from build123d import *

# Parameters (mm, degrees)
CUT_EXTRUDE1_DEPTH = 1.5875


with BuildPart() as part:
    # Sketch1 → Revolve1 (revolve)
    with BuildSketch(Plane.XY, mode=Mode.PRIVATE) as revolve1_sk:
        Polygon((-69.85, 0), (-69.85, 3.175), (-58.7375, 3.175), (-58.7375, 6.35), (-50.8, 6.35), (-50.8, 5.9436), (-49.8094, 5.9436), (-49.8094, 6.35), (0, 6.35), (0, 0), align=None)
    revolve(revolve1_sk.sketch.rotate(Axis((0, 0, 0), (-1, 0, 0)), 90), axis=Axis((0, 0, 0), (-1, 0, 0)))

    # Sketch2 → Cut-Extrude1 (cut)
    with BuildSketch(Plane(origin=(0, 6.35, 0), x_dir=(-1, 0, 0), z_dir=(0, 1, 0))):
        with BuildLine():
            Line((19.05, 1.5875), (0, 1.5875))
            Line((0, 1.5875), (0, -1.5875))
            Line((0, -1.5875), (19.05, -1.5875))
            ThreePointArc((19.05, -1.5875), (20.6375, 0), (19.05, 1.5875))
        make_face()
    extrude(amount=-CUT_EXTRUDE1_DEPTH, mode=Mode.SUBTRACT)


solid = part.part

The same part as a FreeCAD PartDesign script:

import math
import FreeCAD as App
import Part
import Sketcher
Q = App.Units.Quantity


def add_polygon(sketch, points):
    """Adds a closed chain of lines whose ends are joined by coincident constraints."""
    first, n = sketch.GeometryCount, len(points)
    for a, b in zip(points, points[1:] + points[:1]):
        sketch.addGeometry(Part.LineSegment(App.Vector(*a, 0), App.Vector(*b, 0)), False)
    for i in range(n):
        sketch.addConstraint(Sketcher.Constraint("Coincident", first + i, 2, first + (i + 1) % n, 1))

doc = App.newDocument("Part")
body = doc.addObject("PartDesign::Body", "Body")

# Sketch on XY plane
sketch1 = body.newObject("Sketcher::SketchObject", "Sketch")
sketch1.AttachmentSupport = (doc.getObject("XY_Plane"), [""])
sketch1.MapMode = "FlatFace"
add_polygon(sketch1, [(-69.85, 3.17), (-69.85, 0), (0, 0), (0, 6.35), (-49.81, 6.35), (-49.81, 5.94), (-50.8, 5.94), (-50.8, 6.35), (-58.74, 6.35), (-58.74, 3.17)])  # lines 0-9
sketch1.addConstraint([
    Sketcher.Constraint("Vertical", 0),
    Sketcher.Constraint("Horizontal", 1),
    Sketcher.Constraint("Vertical", 2),
    Sketcher.Constraint("Horizontal", 3),
    Sketcher.Constraint("Vertical", 4),
    Sketcher.Constraint("Horizontal", 5),
    Sketcher.Constraint("Vertical", 6),
    Sketcher.Constraint("Horizontal", 7),
    Sketcher.Constraint("Vertical", 8),
    Sketcher.Constraint("Horizontal", 9),
    Sketcher.Constraint("Coincident", 1, 2, -1, 1),
    Sketcher.Constraint("Horizontal", 3, 2, 6, 2),
    Sketcher.Constraint("Equal", 0, 8),
    Sketcher.Constraint("DistanceX", 5, 2, -1, 1, Q("2 in")),
    Sketcher.Constraint("DistanceX", 1, 1, 1, 2, Q("2.75 in")),
    Sketcher.Constraint("DistanceY", 2, 1, 2, 2, Q("0.25 in")),
    Sketcher.Constraint("DistanceX", 3, 2, 3, 1, Q("1.961 in")),
    Sketcher.Constraint("DistanceX", 7, 2, 7, 1, Q("0.3125 in")),
    Sketcher.Constraint("DistanceY", 4, 2, 4, 1, Q("0.016 in")),
])
revolution = body.newObject("PartDesign::Revolution", "Revolution")
revolution.Profile = sketch1
revolution.ReferenceAxis = (sketch1, ["H_Axis"])
revolution.Angle = 360

# Sketch on XZ plane
sketch2 = body.newObject("Sketcher::SketchObject", "Sketch001")
sketch2.AttachmentSupport = (doc.getObject("XZ_Plane"), [""])
sketch2.MapMode = "FlatFace"
sketch2.AttachmentOffset = App.Placement(App.Vector(0, 0, -0.25 * 25.4), App.Rotation())
sketch2.addGeometry([
    Part.LineSegment(App.Vector(-19.1, 1.6, 0), App.Vector(0, 1.6, 0)),
    Part.LineSegment(App.Vector(0, 1.6, 0), App.Vector(0, -1.6, 0)),
    Part.LineSegment(App.Vector(0, -1.6, 0), App.Vector(-19.1, -1.6, 0)),
    Part.ArcOfCircle(Part.Circle(App.Vector(-19.1, 0, 0), App.Vector(0, 0, 1), 1.6), math.radians(90), math.radians(270)),
], False)
sketch2.addConstraint([
    Sketcher.Constraint("Coincident", 0, 2, 1, 1),
    Sketcher.Constraint("Coincident", 1, 2, 2, 1),
    Sketcher.Constraint("Tangent", 2, 2, 3, 2),
    Sketcher.Constraint("Tangent", 3, 1, 0, 1),
    Sketcher.Constraint("Horizontal", 0),
    Sketcher.Constraint("Vertical", 1),
    Sketcher.Constraint("Horizontal", 2),
    Sketcher.Constraint("Symmetric", 0, 2, 1, 2, -1, 1),
    Sketcher.Constraint("Radius", 3, Q("0.0625 in")),
    Sketcher.Constraint("DistanceX", 0, 1, 0, 2, Q("0.75 in")),
])
pocket1 = body.newObject("PartDesign::Pocket", "Pocket")
pocket1.Profile = sketch2
pocket1.Length = Q("0.0625 in")
pocket1.Reversed = True

doc.recompute()
